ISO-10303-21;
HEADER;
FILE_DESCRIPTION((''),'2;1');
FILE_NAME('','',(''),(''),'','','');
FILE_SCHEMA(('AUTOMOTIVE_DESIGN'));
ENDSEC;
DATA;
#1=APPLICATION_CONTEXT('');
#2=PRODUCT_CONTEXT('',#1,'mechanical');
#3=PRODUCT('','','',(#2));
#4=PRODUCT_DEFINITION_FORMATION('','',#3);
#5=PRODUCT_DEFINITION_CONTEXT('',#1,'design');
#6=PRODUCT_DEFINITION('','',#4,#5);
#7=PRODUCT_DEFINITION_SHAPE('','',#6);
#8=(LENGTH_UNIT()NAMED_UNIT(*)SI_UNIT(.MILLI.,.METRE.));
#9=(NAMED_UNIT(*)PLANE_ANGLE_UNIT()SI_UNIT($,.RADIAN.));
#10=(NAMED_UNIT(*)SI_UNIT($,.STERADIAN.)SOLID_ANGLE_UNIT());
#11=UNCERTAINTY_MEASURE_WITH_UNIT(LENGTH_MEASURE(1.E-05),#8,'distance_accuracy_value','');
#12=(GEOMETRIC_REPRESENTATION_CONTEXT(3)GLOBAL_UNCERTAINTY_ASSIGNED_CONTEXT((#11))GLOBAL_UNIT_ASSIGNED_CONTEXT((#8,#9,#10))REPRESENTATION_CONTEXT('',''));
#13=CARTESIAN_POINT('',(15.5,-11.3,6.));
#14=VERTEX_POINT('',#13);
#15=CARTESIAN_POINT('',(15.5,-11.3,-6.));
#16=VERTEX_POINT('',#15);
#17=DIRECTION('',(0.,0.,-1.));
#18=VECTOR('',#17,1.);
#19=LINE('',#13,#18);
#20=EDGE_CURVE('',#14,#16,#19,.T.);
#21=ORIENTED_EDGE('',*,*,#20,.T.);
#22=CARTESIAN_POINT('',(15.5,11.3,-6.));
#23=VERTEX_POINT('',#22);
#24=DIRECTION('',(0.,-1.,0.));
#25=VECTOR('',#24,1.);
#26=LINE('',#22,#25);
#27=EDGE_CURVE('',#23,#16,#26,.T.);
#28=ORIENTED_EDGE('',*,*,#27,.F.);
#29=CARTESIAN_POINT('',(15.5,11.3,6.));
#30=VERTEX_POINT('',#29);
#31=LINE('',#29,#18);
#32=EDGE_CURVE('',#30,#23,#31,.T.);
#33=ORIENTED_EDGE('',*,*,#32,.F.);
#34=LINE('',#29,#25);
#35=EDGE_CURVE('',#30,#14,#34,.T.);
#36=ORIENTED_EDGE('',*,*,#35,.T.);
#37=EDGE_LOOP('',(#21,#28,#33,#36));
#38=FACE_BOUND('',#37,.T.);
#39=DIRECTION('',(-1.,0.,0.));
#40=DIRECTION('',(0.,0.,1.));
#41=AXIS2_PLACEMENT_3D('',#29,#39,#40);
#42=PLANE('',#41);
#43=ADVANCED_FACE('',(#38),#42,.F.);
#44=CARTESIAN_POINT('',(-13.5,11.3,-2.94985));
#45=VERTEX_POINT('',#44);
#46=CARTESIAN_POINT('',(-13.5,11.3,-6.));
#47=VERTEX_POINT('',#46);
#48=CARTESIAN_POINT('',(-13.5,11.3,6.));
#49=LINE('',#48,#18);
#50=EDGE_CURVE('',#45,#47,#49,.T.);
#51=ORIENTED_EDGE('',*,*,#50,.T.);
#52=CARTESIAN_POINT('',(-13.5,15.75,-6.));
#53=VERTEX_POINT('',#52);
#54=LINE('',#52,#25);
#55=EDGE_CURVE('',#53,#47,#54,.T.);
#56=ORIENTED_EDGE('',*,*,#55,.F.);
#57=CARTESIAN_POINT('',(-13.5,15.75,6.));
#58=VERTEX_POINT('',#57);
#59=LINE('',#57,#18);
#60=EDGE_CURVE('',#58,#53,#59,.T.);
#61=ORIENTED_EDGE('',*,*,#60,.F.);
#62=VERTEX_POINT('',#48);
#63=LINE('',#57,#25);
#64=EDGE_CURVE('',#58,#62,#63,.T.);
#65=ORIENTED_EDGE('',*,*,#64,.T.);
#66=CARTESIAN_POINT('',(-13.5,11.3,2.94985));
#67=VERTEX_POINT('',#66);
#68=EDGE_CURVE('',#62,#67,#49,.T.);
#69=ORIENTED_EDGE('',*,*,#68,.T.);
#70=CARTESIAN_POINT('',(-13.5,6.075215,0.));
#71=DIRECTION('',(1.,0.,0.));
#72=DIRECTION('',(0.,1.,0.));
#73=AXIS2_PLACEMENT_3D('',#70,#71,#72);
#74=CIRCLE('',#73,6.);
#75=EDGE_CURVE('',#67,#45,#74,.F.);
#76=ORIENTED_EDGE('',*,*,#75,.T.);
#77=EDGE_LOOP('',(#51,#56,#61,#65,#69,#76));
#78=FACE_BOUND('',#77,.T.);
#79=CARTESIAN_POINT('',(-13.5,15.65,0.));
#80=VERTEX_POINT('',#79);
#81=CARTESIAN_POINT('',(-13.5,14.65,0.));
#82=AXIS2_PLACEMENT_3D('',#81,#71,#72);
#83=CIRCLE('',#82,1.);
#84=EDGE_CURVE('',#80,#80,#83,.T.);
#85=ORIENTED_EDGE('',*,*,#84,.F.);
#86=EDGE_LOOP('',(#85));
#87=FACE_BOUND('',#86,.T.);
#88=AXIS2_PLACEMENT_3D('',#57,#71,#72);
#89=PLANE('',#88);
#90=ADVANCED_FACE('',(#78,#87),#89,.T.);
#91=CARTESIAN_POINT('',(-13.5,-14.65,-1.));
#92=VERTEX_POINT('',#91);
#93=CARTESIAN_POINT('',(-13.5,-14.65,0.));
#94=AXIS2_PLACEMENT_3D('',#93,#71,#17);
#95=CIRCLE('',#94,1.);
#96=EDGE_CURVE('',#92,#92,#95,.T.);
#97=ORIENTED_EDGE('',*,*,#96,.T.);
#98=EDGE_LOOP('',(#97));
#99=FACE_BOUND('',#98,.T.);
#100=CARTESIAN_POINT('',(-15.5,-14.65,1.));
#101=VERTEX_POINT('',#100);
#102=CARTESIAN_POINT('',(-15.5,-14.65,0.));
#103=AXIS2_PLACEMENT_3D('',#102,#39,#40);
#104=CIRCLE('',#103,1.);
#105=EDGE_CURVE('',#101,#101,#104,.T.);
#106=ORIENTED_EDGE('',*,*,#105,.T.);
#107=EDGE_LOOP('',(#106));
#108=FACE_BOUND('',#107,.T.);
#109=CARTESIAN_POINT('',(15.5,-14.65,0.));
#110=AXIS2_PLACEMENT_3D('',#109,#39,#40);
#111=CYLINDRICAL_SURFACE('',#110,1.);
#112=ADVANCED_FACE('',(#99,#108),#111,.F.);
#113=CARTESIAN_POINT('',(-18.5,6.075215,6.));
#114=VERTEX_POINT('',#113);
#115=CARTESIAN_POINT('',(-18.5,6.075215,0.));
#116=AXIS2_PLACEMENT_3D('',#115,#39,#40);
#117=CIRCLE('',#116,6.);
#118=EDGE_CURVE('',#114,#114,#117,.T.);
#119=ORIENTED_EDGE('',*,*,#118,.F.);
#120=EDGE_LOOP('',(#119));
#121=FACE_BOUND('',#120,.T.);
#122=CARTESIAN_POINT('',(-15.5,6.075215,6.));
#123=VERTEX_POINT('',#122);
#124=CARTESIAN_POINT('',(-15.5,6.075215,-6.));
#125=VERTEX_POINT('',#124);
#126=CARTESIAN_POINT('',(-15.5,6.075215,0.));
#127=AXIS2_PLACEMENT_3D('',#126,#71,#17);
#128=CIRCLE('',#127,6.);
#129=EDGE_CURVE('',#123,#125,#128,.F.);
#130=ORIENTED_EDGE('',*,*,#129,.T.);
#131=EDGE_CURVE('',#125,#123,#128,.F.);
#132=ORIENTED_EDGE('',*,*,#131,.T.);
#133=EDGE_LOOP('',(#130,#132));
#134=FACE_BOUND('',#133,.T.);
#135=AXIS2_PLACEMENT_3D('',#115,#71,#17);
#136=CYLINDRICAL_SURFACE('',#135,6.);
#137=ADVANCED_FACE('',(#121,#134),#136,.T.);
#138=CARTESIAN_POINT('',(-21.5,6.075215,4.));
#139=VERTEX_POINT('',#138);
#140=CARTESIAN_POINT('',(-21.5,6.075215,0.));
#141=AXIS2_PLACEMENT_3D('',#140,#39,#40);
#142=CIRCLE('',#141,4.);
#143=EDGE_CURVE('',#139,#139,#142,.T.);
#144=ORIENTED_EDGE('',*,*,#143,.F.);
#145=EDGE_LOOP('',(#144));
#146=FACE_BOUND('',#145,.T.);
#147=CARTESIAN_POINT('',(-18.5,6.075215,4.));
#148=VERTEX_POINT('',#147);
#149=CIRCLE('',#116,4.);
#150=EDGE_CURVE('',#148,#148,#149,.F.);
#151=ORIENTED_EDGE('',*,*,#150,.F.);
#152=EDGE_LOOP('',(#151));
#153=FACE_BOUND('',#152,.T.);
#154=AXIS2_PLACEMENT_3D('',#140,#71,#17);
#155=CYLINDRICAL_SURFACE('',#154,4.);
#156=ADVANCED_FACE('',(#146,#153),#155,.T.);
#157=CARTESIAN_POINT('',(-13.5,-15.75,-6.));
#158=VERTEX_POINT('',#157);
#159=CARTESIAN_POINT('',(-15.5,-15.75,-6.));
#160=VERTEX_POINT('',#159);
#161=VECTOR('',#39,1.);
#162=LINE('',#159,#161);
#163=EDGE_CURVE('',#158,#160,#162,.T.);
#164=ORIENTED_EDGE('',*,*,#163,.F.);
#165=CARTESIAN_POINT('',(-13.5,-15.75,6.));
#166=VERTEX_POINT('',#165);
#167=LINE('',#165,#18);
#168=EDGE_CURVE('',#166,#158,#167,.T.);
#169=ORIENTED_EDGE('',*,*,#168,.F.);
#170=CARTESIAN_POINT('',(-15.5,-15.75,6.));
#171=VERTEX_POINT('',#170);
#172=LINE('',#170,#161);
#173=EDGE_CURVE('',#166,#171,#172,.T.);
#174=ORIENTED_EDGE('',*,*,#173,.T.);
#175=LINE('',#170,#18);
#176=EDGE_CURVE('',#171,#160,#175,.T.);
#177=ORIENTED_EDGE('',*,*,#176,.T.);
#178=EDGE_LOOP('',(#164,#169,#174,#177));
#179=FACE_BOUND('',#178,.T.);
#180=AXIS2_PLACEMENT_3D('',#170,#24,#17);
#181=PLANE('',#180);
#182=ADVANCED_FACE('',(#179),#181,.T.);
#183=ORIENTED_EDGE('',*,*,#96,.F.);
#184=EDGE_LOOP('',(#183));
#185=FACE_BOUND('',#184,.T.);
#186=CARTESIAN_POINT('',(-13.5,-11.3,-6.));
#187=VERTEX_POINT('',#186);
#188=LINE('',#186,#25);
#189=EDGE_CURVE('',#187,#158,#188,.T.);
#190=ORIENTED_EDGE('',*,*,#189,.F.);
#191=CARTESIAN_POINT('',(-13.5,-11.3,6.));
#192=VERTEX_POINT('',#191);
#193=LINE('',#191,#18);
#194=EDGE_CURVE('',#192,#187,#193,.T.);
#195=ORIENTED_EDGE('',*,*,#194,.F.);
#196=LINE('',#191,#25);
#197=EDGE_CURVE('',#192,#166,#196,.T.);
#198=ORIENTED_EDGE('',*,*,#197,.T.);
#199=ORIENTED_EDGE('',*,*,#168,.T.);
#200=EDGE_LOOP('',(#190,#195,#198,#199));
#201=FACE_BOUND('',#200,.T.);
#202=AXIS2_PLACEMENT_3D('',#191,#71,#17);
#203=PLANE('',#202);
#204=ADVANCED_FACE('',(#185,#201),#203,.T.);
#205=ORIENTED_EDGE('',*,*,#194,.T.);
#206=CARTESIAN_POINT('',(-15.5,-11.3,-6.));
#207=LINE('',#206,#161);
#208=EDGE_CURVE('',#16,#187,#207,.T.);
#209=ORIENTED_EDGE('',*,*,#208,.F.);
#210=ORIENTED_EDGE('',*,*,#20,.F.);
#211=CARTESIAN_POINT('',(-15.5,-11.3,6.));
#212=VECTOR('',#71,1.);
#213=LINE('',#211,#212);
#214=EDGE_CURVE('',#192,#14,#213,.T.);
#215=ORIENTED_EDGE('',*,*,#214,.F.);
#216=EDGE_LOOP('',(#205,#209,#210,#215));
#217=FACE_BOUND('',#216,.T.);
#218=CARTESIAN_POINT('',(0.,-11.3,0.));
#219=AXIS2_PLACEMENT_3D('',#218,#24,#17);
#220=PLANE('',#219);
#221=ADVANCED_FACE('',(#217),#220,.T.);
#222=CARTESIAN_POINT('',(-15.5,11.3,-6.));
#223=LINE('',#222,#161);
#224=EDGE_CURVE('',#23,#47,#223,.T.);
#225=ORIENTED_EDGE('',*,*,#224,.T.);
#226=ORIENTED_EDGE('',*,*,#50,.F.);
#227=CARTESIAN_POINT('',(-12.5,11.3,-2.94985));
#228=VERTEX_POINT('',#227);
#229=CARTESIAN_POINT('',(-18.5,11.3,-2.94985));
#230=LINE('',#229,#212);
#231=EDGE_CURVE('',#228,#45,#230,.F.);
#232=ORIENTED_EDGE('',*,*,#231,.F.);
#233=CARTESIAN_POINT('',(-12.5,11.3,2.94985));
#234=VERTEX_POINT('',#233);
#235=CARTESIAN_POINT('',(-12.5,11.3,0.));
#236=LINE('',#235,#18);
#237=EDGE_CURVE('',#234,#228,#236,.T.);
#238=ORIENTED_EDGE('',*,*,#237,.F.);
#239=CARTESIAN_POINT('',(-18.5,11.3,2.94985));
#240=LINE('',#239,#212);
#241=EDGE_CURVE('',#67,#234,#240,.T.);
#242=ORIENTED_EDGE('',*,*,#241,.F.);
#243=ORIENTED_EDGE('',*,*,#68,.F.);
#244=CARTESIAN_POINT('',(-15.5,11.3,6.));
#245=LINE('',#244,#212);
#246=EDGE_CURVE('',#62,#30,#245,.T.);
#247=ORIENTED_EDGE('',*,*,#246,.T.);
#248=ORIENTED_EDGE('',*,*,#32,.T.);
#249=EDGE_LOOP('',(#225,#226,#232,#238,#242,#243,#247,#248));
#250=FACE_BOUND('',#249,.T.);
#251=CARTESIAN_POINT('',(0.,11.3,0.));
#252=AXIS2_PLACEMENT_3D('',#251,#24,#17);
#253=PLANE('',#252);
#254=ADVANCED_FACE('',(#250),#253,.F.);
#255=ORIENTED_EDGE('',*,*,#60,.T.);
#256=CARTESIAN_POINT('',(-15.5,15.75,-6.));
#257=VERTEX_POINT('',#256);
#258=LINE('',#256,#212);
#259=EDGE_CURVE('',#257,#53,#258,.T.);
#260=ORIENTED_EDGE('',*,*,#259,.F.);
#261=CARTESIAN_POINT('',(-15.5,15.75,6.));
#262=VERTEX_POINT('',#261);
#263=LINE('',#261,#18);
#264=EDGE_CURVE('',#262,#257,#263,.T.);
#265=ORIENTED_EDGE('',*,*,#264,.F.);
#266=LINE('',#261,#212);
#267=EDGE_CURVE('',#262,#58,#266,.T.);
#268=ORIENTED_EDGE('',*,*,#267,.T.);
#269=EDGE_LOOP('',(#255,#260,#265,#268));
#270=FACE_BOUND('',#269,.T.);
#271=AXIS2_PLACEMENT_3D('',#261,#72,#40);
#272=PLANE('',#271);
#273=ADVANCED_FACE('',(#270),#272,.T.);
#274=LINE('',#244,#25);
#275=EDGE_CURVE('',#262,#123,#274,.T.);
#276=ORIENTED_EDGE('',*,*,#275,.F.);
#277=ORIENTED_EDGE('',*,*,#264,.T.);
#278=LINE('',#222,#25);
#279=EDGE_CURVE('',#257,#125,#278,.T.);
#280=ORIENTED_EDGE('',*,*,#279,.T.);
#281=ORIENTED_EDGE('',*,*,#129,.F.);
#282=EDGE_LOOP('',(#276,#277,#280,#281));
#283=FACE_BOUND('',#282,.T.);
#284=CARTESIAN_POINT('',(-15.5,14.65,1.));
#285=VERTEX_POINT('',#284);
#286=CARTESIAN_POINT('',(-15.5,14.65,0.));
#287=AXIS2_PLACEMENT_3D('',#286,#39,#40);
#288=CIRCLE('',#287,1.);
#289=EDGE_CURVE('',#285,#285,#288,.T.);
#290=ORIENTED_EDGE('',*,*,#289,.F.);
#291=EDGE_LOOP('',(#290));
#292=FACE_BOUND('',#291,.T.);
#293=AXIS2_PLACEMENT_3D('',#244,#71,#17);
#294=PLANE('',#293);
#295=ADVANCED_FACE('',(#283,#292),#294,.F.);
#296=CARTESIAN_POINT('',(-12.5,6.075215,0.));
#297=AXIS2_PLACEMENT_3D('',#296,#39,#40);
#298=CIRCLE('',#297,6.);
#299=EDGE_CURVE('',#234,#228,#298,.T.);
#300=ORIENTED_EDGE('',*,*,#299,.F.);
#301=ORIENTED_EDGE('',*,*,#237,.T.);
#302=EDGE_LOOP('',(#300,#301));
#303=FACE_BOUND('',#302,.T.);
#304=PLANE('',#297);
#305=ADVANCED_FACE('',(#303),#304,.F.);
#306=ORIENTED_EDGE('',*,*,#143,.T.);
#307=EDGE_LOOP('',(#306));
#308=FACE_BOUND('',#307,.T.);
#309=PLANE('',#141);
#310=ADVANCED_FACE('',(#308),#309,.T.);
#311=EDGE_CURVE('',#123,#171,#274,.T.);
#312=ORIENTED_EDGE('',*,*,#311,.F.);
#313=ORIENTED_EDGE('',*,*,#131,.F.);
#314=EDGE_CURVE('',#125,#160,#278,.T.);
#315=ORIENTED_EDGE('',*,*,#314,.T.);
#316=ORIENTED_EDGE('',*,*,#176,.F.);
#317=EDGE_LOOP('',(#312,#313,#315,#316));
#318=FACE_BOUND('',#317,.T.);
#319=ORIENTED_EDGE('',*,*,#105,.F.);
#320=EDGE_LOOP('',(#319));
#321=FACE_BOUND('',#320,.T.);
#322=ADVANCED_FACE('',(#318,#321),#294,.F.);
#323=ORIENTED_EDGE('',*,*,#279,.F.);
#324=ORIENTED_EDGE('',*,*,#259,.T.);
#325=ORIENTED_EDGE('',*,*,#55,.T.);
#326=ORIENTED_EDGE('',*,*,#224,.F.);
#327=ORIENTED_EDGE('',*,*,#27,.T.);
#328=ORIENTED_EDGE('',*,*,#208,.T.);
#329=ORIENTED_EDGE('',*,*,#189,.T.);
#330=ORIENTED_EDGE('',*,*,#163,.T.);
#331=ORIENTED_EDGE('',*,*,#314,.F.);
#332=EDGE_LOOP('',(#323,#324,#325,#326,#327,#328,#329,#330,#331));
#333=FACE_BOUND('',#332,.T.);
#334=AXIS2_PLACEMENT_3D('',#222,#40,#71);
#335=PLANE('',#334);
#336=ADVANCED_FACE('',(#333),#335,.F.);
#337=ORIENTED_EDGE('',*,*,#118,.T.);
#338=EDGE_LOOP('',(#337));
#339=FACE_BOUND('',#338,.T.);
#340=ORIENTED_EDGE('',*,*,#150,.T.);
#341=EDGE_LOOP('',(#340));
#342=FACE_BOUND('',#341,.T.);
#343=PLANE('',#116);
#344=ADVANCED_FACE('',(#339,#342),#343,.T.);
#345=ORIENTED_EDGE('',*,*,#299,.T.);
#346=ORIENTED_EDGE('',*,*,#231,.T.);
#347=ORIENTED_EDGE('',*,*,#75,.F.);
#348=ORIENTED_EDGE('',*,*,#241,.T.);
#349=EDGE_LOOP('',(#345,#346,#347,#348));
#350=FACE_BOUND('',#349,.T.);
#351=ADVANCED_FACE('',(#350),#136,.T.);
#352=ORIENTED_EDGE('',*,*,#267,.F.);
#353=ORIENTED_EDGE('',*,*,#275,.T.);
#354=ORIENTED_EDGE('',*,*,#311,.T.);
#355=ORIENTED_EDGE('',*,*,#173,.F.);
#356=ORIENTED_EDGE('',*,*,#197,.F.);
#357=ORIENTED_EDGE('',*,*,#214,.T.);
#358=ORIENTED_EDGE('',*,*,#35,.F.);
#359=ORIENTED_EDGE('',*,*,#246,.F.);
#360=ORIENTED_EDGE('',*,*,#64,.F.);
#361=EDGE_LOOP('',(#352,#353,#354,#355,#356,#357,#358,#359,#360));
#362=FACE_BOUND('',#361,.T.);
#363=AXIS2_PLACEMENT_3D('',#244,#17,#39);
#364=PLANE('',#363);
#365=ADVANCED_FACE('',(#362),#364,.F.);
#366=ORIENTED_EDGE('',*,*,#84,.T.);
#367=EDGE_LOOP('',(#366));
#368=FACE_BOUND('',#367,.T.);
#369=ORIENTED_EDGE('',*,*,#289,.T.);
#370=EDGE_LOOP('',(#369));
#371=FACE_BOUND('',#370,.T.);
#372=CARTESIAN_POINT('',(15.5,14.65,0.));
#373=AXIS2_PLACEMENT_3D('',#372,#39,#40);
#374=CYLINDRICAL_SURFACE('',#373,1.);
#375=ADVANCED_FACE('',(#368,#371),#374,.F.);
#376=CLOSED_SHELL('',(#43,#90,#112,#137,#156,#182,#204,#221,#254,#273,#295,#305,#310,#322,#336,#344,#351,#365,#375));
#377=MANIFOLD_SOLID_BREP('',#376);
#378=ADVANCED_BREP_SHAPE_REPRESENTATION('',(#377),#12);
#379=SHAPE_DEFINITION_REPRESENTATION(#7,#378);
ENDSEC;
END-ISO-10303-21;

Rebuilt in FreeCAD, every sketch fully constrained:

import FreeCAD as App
import Part
import Sketcher

doc = App.newDocument("Part")
body = doc.addObject("PartDesign::Body", "Body")

# Sketch on XZ plane
sketch1 = body.newObject("Sketcher::SketchObject", "Sketch")
sketch1.AttachmentSupport = (doc.getObject("XZ_Plane"), [""])
sketch1.MapMode = "FlatFace"
sketch1.addGeometry(Part.LineSegment(App.Vector(-16, -6, 0), App.Vector(-16, 6, 0)), False)
sketch1.addGeometry(Part.LineSegment(App.Vector(-16, 6, 0), App.Vector(16, 6, 0)), False)
sketch1.addGeometry(Part.LineSegment(App.Vector(16, 6, 0), App.Vector(16, -6, 0)), False)
sketch1.addGeometry(Part.LineSegment(App.Vector(16, -6, 0), App.Vector(-16, -6, 0)), False)
sketch1.addConstraint(Sketcher.Constraint("Coincident", 0, 2, 1, 1))
sketch1.addConstraint(Sketcher.Constraint("Coincident", 1, 2, 2, 1))
sketch1.addConstraint(Sketcher.Constraint("Coincident", 2, 2, 3, 1))
sketch1.addConstraint(Sketcher.Constraint("Coincident", 3, 2, 0, 1))
sketch1.addConstraint(Sketcher.Constraint("Vertical", 0))
sketch1.addConstraint(Sketcher.Constraint("Horizontal", 1))
sketch1.addConstraint(Sketcher.Constraint("Vertical", 2))
sketch1.addConstraint(Sketcher.Constraint("Horizontal", 3))
sketch1.addConstraint(Sketcher.Constraint("Symmetric", 0, 2, 2, 2, -1, 1))
sketch1.addConstraint(Sketcher.Constraint("DistanceX", 1, 1, 1, 2, 31.0))
sketch1.addConstraint(Sketcher.Constraint("DistanceY", 0, 1, 0, 2, 12.0))
pad1 = body.newObject("PartDesign::Pad", "Pad")
pad1.Profile = sketch1
pad1.Length = 22.6
pad1.Midplane = True

# Sketch on XY plane
sketch2 = body.newObject("Sketcher::SketchObject", "Sketch001")
sketch2.AttachmentSupport = (doc.getObject("XY_Plane"), [""])
sketch2.MapMode = "FlatFace"
sketch2.AttachmentOffset = App.Placement(App.Vector(0, 0, -6), App.Rotation())
sketch2.addGeometry(Part.LineSegment(App.Vector(-13.5, 15.8, 0), App.Vector(-13.5, 11.3, 0)), False)
sketch2.addGeometry(Part.LineSegment(App.Vector(-13.5, 11.3, 0), App.Vector(-15.5, 11.3, 0)), False)
sketch2.addGeometry(Part.LineSegment(App.Vector(-15.5, 11.3, 0), App.Vector(-15.5, 15.8, 0)), False)
sketch2.addGeometry(Part.LineSegment(App.Vector(-15.5, 15.8, 0), App.Vector(-13.5, 15.8, 0)), False)
sketch2.addConstraint(Sketcher.Constraint("Coincident", 0, 2, 1, 1))
sketch2.addConstraint(Sketcher.Constraint("Coincident", 1, 2, 2, 1))
sketch2.addConstraint(Sketcher.Constraint("Coincident", 2, 2, 3, 1))
sketch2.addConstraint(Sketcher.Constraint("Coincident", 3, 2, 0, 1))
sketch2.addConstraint(Sketcher.Constraint("Vertical", 0))
sketch2.addConstraint(Sketcher.Constraint("Horizontal", 1))
sketch2.addConstraint(Sketcher.Constraint("Vertical", 2))
sketch2.addConstraint(Sketcher.Constraint("Horizontal", 3))
sketch2.addConstraint(Sketcher.Constraint("DistanceX", 1, 2, 1, 1, 2.0))
sketch2.addConstraint(Sketcher.Constraint("DistanceY", 0, 2, 0, 1, 4.45))
sketch2.addConstraint(Sketcher.Constraint("DistanceX", 0, 2, -1, 1, 13.5))
sketch2.addConstraint(Sketcher.Constraint("DistanceY", -1, 1, 0, 2, 11.3))
pad2 = body.newObject("PartDesign::Pad", "Pad001")
pad2.Profile = sketch2
pad2.Length = 12

# Sketch on XY plane
sketch3 = body.newObject("Sketcher::SketchObject", "Sketch002")
sketch3.AttachmentSupport = (doc.getObject("XY_Plane"), [""])
sketch3.MapMode = "FlatFace"
sketch3.AttachmentOffset = App.Placement(App.Vector(0, 0, -6), App.Rotation())
sketch3.addGeometry(Part.LineSegment(App.Vector(-13.5, -11.3, 0), App.Vector(-13.5, -15.8, 0)), False)
sketch3.addGeometry(Part.LineSegment(App.Vector(-13.5, -15.8, 0), App.Vector(-15.5, -15.8, 0)), False)
sketch3.addGeometry(Part.LineSegment(App.Vector(-15.5, -15.8, 0), App.Vector(-15.5, -11.3, 0)), False)
sketch3.addGeometry(Part.LineSegment(App.Vector(-15.5, -11.3, 0), App.Vector(-13.5, -11.3, 0)), False)
sketch3.addConstraint(Sketcher.Constraint("Coincident", 0, 2, 1, 1))
sketch3.addConstraint(Sketcher.Constraint("Coincident", 1, 2, 2, 1))
sketch3.addConstraint(Sketcher.Constraint("Coincident", 2, 2, 3, 1))
sketch3.addConstraint(Sketcher.Constraint("Coincident", 3, 2, 0, 1))
sketch3.addConstraint(Sketcher.Constraint("Vertical", 0))
sketch3.addConstraint(Sketcher.Constraint("Horizontal", 1))
sketch3.addConstraint(Sketcher.Constraint("Vertical", 2))
sketch3.addConstraint(Sketcher.Constraint("Horizontal", 3))
sketch3.addConstraint(Sketcher.Constraint("DistanceX", 1, 2, 1, 1, 2.0))
sketch3.addConstraint(Sketcher.Constraint("DistanceY", 0, 2, 0, 1, 4.45))
sketch3.addConstraint(Sketcher.Constraint("DistanceX", 0, 2, -1, 1, 13.5))
sketch3.addConstraint(Sketcher.Constraint("DistanceY", 2, 2, -1, 1, 11.3))
pad3 = body.newObject("PartDesign::Pad", "Pad002")
pad3.Profile = sketch3
pad3.Length = 12

# Sketch on YZ plane
sketch4 = body.newObject("Sketcher::SketchObject", "Sketch003")
sketch4.AttachmentSupport = (doc.getObject("YZ_Plane"), [""])
sketch4.MapMode = "FlatFace"
sketch4.AttachmentOffset = App.Placement(App.Vector(0, 0, -15.5), App.Rotation())
sketch4.addGeometry(Part.Circle(App.Vector(14.7, 0, 0), App.Vector(0, 0, 1), 1), False)
sketch4.addGeometry(Part.Circle(App.Vector(-14.7, 0, 0), App.Vector(0, 0, 1), 1), False)
sketch4.addConstraint(Sketcher.Constraint("Equal", 0, 1))
sketch4.addConstraint(Sketcher.Constraint("Symmetric", 0, 3, 1, 3, -1, 1))
sketch4.addConstraint(Sketcher.Constraint("PointOnObject", 0, 3, -1))
sketch4.addConstraint(Sketcher.Constraint("Diameter", 0, 2.0))
sketch4.addConstraint(Sketcher.Constraint("DistanceX", 1, 3, 0, 3, 29.3))
pocket1 = body.newObject("PartDesign::Pocket", "Pocket")
pocket1.Profile = sketch4
pocket1.Type = "ThroughAll"
pocket1.Reversed = True

# Sketch on YZ plane
sketch5 = body.newObject("Sketcher::SketchObject", "Sketch004")
sketch5.AttachmentSupport = (doc.getObject("YZ_Plane"), [""])
sketch5.MapMode = "FlatFace"
sketch5.AttachmentOffset = App.Placement(App.Vector(0, 0, -15.5), App.Rotation())
sketch5.addGeometry(Part.Circle(App.Vector(6, 0, 0), App.Vector(0, 0, 1), 6), False)
sketch5.addConstraint(Sketcher.Constraint("PointOnObject", 0, 3, -1))
sketch5.addConstraint(Sketcher.Constraint("Diameter", 0, 12.0))
sketch5.addConstraint(Sketcher.Constraint("DistanceX", -1, 1, 0, 3, 6.075215))
pad4 = body.newObject("PartDesign::Pad", "Pad003")
pad4.Profile = sketch5
pad4.Length = 6
pad4.Midplane = True

# Sketch on YZ plane
sketch6 = body.newObject("Sketcher::SketchObject", "Sketch005")
sketch6.AttachmentSupport = (doc.getObject("YZ_Plane"), [""])
sketch6.MapMode = "FlatFace"
sketch6.AttachmentOffset = App.Placement(App.Vector(0, 0, -18.5), App.Rotation())
sketch6.addGeometry(Part.Circle(App.Vector(6.1, 0, 0), App.Vector(0, 0, 1), 4), False)
sketch6.addConstraint(Sketcher.Constraint("PointOnObject", 0, 3, -1))
sketch6.addConstraint(Sketcher.Constraint("Diameter", 0, 8.0))
sketch6.addConstraint(Sketcher.Constraint("DistanceX", -1, 1, 0, 3, 6.075215))
pad5 = body.newObject("PartDesign::Pad", "Pad004")
pad5.Profile = sketch6
pad5.Length = 6
pad5.Midplane = True

doc.recompute()
